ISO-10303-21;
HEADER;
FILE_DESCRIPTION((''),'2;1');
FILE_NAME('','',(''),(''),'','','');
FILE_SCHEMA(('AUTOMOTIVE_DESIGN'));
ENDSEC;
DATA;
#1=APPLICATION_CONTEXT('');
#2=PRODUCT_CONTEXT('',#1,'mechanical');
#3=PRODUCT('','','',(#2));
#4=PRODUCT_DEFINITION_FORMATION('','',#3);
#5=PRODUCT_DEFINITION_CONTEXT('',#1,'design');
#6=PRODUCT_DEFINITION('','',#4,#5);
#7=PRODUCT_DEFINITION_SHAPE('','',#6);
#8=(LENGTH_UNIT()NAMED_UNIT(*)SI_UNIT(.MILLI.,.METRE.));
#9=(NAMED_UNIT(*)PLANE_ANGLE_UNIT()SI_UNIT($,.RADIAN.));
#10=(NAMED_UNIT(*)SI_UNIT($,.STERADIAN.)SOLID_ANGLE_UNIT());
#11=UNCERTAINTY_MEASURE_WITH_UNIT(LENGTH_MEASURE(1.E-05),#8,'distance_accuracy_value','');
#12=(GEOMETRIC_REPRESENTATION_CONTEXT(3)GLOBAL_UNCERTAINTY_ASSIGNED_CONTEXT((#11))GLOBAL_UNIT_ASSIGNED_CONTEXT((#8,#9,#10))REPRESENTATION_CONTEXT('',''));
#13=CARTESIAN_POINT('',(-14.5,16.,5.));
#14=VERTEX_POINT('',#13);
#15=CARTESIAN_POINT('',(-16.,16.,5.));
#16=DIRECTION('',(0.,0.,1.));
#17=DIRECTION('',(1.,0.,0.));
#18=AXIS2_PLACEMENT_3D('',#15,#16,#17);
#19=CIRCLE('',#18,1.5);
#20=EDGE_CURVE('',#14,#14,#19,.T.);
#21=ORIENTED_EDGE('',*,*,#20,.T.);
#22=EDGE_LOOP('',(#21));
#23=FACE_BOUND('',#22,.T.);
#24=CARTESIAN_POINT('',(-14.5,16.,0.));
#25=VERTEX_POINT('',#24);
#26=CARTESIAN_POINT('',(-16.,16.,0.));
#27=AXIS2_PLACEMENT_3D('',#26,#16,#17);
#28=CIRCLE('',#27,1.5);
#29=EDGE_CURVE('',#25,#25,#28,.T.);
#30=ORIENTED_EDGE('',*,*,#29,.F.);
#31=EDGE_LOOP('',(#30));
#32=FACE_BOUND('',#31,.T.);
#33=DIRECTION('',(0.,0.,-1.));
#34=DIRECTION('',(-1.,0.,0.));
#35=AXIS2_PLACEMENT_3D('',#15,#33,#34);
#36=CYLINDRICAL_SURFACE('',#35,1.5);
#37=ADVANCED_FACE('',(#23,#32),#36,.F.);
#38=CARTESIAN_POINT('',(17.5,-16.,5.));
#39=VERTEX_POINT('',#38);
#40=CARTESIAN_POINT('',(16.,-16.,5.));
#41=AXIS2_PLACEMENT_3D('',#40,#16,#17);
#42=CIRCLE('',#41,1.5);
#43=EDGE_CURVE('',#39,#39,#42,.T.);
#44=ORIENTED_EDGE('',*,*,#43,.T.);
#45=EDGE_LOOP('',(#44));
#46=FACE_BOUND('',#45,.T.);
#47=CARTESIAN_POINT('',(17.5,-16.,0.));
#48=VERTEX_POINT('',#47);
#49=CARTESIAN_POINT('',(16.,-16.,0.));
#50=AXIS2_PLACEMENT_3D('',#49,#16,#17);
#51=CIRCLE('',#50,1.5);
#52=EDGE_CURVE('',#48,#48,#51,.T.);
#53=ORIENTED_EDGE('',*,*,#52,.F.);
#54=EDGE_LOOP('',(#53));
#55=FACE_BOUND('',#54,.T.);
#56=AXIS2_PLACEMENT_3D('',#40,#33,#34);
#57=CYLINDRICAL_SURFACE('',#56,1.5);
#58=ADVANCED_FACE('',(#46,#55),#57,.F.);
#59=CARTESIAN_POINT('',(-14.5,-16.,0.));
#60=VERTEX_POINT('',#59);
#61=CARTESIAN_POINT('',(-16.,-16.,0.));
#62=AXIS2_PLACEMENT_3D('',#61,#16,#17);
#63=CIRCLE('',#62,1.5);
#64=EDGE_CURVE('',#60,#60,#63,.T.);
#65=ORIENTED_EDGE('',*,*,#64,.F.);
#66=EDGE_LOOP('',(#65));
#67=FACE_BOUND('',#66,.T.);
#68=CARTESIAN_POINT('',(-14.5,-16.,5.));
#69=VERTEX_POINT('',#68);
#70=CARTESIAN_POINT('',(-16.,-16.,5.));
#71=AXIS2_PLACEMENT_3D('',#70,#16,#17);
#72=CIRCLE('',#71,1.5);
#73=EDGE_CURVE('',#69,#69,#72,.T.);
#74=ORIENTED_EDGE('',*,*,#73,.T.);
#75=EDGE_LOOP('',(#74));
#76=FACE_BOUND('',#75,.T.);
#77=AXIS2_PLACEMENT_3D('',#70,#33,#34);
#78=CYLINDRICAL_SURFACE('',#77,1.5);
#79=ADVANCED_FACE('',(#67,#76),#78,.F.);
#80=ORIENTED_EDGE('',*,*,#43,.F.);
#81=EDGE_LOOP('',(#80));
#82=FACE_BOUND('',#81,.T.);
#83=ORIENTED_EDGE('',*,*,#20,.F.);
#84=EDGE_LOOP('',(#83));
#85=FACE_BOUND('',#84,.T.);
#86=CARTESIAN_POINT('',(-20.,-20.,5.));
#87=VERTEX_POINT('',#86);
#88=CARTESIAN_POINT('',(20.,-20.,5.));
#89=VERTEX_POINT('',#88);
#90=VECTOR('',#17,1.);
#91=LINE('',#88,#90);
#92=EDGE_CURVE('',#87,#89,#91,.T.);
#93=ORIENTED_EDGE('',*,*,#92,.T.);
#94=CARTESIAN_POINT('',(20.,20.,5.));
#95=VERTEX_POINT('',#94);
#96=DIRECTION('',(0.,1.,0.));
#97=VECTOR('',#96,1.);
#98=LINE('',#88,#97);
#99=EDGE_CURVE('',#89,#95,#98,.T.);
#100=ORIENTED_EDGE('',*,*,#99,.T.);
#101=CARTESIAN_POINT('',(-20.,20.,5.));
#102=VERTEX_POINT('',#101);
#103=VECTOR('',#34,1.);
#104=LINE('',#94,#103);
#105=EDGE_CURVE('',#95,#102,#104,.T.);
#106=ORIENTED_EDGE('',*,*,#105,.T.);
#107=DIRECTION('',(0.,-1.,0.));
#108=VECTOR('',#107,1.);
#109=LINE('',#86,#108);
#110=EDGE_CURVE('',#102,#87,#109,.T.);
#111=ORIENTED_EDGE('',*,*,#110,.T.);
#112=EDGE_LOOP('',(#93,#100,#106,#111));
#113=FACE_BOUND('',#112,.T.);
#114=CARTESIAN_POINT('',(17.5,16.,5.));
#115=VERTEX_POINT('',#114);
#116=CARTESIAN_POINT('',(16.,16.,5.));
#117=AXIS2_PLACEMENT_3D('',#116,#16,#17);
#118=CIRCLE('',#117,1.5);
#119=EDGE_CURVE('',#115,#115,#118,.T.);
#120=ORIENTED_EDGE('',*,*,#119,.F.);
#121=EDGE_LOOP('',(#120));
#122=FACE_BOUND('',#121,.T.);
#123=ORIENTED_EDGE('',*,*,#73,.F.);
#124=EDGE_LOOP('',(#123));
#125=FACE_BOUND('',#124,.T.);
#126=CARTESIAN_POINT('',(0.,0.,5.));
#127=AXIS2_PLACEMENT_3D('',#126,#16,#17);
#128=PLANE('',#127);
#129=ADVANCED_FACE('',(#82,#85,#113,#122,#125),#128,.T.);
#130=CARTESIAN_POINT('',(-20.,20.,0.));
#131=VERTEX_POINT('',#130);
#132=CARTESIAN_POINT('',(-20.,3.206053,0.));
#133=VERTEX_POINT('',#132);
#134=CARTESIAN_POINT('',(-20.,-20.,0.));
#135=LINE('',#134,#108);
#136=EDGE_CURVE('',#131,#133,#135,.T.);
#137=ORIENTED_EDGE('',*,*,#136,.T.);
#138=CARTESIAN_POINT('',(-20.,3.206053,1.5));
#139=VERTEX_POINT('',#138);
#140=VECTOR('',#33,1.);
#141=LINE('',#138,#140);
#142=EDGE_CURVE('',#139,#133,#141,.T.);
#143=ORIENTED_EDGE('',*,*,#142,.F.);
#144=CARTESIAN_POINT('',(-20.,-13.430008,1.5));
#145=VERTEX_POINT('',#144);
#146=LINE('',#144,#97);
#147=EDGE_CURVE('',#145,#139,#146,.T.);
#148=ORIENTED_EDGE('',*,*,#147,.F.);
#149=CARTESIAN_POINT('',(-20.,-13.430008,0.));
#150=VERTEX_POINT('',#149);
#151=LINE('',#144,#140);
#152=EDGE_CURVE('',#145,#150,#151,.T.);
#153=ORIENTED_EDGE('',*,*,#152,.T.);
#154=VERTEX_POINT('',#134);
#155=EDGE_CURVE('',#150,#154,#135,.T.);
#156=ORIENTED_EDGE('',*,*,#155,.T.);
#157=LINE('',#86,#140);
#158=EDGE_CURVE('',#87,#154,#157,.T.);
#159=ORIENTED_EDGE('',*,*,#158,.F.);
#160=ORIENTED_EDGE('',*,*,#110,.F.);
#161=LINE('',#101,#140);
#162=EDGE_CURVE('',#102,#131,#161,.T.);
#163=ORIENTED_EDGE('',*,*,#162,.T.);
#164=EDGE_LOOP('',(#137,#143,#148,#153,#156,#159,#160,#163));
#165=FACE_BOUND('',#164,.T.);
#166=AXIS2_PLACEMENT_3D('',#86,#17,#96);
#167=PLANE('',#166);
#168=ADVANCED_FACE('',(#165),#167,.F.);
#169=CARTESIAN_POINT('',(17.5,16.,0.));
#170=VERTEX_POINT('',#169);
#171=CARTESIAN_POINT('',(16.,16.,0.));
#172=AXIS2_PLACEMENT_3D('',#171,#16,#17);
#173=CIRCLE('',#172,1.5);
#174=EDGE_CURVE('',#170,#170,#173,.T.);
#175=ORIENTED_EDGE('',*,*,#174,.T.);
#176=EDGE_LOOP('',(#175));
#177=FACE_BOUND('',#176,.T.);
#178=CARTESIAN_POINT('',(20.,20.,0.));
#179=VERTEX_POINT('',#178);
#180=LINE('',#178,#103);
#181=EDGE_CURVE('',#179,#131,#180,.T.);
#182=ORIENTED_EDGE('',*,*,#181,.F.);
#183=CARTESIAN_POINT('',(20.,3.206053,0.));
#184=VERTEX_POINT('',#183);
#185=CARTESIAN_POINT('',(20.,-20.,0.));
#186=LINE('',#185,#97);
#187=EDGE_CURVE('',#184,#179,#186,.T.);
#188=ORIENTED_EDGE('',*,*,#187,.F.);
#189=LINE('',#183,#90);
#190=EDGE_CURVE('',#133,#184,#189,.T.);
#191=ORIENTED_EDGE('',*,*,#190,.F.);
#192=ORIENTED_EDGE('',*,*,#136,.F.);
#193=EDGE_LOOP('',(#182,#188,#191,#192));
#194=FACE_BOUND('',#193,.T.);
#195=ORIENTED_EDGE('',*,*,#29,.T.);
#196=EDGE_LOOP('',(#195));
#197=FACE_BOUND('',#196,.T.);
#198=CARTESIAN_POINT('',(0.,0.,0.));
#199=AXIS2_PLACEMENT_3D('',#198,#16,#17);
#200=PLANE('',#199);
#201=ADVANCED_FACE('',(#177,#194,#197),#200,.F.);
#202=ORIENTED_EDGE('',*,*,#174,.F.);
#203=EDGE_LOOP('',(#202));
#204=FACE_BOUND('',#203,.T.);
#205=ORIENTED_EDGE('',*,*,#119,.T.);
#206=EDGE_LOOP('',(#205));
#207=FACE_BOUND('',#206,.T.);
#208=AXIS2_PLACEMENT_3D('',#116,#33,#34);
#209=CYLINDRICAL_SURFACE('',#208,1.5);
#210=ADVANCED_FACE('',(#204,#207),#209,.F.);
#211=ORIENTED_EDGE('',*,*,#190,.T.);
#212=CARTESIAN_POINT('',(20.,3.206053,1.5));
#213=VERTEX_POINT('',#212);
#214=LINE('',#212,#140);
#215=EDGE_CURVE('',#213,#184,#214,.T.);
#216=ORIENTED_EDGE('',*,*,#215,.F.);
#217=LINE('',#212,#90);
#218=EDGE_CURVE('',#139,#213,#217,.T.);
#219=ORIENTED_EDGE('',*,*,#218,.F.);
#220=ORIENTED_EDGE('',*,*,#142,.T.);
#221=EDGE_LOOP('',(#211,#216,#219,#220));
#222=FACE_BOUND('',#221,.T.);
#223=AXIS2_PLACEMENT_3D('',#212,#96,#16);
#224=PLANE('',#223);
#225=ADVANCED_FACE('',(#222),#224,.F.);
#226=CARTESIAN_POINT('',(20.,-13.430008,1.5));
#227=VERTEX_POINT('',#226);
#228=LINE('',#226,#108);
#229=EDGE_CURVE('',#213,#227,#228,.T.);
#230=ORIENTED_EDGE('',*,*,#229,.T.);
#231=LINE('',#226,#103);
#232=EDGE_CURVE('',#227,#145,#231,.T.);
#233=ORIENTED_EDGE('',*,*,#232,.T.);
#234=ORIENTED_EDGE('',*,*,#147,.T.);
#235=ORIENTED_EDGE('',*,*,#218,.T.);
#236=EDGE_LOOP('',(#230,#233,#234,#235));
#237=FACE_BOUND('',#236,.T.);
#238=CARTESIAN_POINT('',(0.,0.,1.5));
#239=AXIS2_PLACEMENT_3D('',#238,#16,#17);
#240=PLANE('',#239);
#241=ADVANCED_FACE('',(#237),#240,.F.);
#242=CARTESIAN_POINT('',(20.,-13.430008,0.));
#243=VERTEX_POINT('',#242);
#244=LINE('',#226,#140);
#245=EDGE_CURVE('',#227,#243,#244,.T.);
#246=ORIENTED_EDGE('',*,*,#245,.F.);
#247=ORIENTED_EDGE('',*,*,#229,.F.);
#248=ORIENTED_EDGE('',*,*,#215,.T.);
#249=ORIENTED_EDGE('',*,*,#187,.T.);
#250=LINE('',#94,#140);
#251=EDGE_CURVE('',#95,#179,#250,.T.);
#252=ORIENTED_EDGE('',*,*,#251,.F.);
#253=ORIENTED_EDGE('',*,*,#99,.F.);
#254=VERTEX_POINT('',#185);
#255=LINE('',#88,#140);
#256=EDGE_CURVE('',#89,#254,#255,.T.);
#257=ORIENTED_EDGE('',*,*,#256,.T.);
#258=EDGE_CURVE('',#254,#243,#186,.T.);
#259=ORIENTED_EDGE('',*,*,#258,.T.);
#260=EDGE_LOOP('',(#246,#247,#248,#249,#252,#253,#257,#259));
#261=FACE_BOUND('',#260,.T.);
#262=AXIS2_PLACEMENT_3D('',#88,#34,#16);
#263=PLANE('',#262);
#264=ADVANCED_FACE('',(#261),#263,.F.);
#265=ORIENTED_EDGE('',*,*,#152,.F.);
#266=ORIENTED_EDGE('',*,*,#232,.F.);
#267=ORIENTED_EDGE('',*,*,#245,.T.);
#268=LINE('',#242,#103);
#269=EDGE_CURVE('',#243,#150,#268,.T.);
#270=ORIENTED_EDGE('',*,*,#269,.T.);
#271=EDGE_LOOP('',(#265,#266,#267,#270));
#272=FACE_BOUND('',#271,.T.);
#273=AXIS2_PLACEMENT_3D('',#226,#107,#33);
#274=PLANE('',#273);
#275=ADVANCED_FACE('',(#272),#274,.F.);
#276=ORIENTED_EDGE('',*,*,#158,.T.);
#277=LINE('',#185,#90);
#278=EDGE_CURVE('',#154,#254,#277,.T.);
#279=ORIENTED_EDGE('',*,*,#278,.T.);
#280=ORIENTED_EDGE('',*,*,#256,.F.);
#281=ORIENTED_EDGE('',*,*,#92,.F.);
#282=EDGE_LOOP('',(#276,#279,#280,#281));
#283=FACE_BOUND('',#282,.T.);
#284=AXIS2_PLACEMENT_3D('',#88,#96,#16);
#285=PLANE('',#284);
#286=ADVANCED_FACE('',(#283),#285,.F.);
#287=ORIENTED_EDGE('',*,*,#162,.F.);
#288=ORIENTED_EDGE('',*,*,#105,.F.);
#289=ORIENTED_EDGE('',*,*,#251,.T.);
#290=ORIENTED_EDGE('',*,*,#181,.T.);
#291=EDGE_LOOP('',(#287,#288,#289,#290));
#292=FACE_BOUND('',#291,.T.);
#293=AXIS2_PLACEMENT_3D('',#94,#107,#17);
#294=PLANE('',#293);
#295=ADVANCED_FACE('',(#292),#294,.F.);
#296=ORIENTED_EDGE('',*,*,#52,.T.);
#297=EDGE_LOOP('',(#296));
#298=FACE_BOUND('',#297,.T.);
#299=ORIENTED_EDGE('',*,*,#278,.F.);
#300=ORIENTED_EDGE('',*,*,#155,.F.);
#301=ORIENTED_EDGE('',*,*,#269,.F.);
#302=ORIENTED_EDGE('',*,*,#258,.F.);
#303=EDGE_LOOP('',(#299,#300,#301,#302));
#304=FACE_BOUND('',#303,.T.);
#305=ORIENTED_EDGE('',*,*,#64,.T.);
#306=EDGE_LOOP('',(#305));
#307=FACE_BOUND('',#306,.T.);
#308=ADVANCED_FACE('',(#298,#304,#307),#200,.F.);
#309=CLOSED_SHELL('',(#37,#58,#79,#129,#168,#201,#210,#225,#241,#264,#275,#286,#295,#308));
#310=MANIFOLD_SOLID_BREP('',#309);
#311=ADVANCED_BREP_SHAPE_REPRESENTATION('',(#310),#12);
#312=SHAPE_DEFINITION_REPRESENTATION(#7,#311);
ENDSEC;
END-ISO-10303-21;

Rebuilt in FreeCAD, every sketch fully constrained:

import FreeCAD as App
import Part
import Sketcher
Q = App.Units.Quantity

doc = App.newDocument("Part")
params = doc.addObject("Spreadsheet::Sheet", "Params")
for row, (alias, value) in enumerate([
    ("sketch1_diameter", "3 mm"),
    ("sketch1_width", "40 mm"),
    ("pad1_length", "5 mm"),
    ("sketch2_width", "40 mm"),
    ("pocket1_length", "1.5 mm"),
], start=1):
    params.set(f"A{row}", alias)
    params.set(f"B{row}", "=" + value)
    params.setAlias(f"B{row}", alias)

body = doc.addObject("PartDesign::Body", "Body")

# Sketch on XY plane
sketch1 = body.newObject("Sketcher::SketchObject", "Sketch")
sketch1.AttachmentSupport = (doc.getObject("XY_Plane"), [""])
sketch1.MapMode = "FlatFace"
sketch1.addGeometry([
    Part.LineSegment(App.Vector(-20, 20, 0), App.Vector(-20, -20, 0)),  # 0
    Part.LineSegment(App.Vector(-20, -20, 0), App.Vector(20, -20, 0)),  # 1
    Part.LineSegment(App.Vector(20, -20, 0), App.Vector(20, 20, 0)),  # 2
    Part.LineSegment(App.Vector(20, 20, 0), App.Vector(-20, 20, 0)),  # 3
    Part.Circle(App.Vector(-16, -16, 0), App.Vector(0, 0, 1), 1.5),  # 4
    Part.Circle(App.Vector(16, -16, 0), App.Vector(0, 0, 1), 1.5),  # 5
    Part.Circle(App.Vector(-16, 16, 0), App.Vector(0, 0, 1), 1.5),  # 6
    Part.Circle(App.Vector(16, 16, 0), App.Vector(0, 0, 1), 1.5),  # 7
], False)
sketch1.addConstraint([
    Sketcher.Constraint("Coincident", 0, 2, 1, 1),
    Sketcher.Constraint("Coincident", 1, 2, 2, 1),
    Sketcher.Constraint("Coincident", 2, 2, 3, 1),
    Sketcher.Constraint("Coincident", 3, 2, 0, 1),
    Sketcher.Constraint("Vertical", 0),
    Sketcher.Constraint("Horizontal", 1),
    Sketcher.Constraint("Vertical", 2),
    Sketcher.Constraint("Horizontal", 3),
    Sketcher.Constraint("Equal", 4, 5),
    Sketcher.Constraint("Equal", 5, 6),
    Sketcher.Constraint("Equal", 6, 7),
    Sketcher.Constraint("Symmetric", 5, 3, 6, 3, -1, 1),
    Sketcher.Constraint("Symmetric", 4, 3, 7, 3, -1, 1),
    Sketcher.Constraint("Symmetric", 0, 2, 2, 2, -1, 1),
    Sketcher.Constraint("Symmetric", 4, 3, 5, 3, -2),
    Sketcher.Constraint("Equal", 3, 0),
    Sketcher.Constraint("Diameter", 4, Q("3 mm")),
    Sketcher.Constraint("DistanceX", 1, 1, 1, 2, Q("40 mm")),
    Sketcher.Constraint("DistanceX", 4, 3, -1, 1, Q("16 mm")),
    Sketcher.Constraint("DistanceY", 4, 3, -1, 1, Q("16 mm")),
])
sketch1.setExpression("Constraints[16]", "Params.sketch1_diameter")
sketch1.setExpression("Constraints[17]", "Params.sketch1_width")
pad1 = body.newObject("PartDesign::Pad", "Pad")
pad1.Profile = sketch1
pad1.setExpression("Length", "Params.pad1_length")

# Sketch on XY plane
sketch2 = body.newObject("Sketcher::SketchObject", "Sketch001")
sketch2.AttachmentSupport = (doc.getObject("XY_Plane"), [""])
sketch2.MapMode = "FlatFace"
sketch2.addGeometry([
    Part.LineSegment(App.Vector(20, 3, 0), App.Vector(20, -13, 0)),
    Part.LineSegment(App.Vector(20, -13, 0), App.Vector(-20, -13, 0)),
    Part.LineSegment(App.Vector(-20, -13, 0), App.Vector(-20, 3, 0)),
    Part.LineSegment(App.Vector(-20, 3, 0), App.Vector(20, 3, 0)),
], False)
sketch2.addConstraint([
    Sketcher.Constraint("Coincident", 0, 2, 1, 1),
    Sketcher.Constraint("Coincident", 1, 2, 2, 1),
    Sketcher.Constraint("Coincident", 2, 2, 3, 1),
    Sketcher.Constraint("Coincident", 3, 2, 0, 1),
    Sketcher.Constraint("Vertical", 0),
    Sketcher.Constraint("Horizontal", 1),
    Sketcher.Constraint("Vertical", 2),
    Sketcher.Constraint("Horizontal", 3),
    Sketcher.Constraint("DistanceX", 1, 2, 1, 1, Q("40 mm")),
    Sketcher.Constraint("DistanceX", -1, 1, 0, 2, Q("20 mm")),
    Sketcher.Constraint("DistanceY", 0, 2, 0, 1, Q("16.636062 mm")),
    Sketcher.Constraint("DistanceY", 0, 2, -1, 1, Q("13.430008 mm")),
])
sketch2.setExpression("Constraints[8]", "Params.sketch2_width")
pocket1 = body.newObject("PartDesign::Pocket", "Pocket")
pocket1.Profile = sketch2
pocket1.setExpression("Length", "Params.pocket1_length")
pocket1.Reversed = True

doc.recompute()
